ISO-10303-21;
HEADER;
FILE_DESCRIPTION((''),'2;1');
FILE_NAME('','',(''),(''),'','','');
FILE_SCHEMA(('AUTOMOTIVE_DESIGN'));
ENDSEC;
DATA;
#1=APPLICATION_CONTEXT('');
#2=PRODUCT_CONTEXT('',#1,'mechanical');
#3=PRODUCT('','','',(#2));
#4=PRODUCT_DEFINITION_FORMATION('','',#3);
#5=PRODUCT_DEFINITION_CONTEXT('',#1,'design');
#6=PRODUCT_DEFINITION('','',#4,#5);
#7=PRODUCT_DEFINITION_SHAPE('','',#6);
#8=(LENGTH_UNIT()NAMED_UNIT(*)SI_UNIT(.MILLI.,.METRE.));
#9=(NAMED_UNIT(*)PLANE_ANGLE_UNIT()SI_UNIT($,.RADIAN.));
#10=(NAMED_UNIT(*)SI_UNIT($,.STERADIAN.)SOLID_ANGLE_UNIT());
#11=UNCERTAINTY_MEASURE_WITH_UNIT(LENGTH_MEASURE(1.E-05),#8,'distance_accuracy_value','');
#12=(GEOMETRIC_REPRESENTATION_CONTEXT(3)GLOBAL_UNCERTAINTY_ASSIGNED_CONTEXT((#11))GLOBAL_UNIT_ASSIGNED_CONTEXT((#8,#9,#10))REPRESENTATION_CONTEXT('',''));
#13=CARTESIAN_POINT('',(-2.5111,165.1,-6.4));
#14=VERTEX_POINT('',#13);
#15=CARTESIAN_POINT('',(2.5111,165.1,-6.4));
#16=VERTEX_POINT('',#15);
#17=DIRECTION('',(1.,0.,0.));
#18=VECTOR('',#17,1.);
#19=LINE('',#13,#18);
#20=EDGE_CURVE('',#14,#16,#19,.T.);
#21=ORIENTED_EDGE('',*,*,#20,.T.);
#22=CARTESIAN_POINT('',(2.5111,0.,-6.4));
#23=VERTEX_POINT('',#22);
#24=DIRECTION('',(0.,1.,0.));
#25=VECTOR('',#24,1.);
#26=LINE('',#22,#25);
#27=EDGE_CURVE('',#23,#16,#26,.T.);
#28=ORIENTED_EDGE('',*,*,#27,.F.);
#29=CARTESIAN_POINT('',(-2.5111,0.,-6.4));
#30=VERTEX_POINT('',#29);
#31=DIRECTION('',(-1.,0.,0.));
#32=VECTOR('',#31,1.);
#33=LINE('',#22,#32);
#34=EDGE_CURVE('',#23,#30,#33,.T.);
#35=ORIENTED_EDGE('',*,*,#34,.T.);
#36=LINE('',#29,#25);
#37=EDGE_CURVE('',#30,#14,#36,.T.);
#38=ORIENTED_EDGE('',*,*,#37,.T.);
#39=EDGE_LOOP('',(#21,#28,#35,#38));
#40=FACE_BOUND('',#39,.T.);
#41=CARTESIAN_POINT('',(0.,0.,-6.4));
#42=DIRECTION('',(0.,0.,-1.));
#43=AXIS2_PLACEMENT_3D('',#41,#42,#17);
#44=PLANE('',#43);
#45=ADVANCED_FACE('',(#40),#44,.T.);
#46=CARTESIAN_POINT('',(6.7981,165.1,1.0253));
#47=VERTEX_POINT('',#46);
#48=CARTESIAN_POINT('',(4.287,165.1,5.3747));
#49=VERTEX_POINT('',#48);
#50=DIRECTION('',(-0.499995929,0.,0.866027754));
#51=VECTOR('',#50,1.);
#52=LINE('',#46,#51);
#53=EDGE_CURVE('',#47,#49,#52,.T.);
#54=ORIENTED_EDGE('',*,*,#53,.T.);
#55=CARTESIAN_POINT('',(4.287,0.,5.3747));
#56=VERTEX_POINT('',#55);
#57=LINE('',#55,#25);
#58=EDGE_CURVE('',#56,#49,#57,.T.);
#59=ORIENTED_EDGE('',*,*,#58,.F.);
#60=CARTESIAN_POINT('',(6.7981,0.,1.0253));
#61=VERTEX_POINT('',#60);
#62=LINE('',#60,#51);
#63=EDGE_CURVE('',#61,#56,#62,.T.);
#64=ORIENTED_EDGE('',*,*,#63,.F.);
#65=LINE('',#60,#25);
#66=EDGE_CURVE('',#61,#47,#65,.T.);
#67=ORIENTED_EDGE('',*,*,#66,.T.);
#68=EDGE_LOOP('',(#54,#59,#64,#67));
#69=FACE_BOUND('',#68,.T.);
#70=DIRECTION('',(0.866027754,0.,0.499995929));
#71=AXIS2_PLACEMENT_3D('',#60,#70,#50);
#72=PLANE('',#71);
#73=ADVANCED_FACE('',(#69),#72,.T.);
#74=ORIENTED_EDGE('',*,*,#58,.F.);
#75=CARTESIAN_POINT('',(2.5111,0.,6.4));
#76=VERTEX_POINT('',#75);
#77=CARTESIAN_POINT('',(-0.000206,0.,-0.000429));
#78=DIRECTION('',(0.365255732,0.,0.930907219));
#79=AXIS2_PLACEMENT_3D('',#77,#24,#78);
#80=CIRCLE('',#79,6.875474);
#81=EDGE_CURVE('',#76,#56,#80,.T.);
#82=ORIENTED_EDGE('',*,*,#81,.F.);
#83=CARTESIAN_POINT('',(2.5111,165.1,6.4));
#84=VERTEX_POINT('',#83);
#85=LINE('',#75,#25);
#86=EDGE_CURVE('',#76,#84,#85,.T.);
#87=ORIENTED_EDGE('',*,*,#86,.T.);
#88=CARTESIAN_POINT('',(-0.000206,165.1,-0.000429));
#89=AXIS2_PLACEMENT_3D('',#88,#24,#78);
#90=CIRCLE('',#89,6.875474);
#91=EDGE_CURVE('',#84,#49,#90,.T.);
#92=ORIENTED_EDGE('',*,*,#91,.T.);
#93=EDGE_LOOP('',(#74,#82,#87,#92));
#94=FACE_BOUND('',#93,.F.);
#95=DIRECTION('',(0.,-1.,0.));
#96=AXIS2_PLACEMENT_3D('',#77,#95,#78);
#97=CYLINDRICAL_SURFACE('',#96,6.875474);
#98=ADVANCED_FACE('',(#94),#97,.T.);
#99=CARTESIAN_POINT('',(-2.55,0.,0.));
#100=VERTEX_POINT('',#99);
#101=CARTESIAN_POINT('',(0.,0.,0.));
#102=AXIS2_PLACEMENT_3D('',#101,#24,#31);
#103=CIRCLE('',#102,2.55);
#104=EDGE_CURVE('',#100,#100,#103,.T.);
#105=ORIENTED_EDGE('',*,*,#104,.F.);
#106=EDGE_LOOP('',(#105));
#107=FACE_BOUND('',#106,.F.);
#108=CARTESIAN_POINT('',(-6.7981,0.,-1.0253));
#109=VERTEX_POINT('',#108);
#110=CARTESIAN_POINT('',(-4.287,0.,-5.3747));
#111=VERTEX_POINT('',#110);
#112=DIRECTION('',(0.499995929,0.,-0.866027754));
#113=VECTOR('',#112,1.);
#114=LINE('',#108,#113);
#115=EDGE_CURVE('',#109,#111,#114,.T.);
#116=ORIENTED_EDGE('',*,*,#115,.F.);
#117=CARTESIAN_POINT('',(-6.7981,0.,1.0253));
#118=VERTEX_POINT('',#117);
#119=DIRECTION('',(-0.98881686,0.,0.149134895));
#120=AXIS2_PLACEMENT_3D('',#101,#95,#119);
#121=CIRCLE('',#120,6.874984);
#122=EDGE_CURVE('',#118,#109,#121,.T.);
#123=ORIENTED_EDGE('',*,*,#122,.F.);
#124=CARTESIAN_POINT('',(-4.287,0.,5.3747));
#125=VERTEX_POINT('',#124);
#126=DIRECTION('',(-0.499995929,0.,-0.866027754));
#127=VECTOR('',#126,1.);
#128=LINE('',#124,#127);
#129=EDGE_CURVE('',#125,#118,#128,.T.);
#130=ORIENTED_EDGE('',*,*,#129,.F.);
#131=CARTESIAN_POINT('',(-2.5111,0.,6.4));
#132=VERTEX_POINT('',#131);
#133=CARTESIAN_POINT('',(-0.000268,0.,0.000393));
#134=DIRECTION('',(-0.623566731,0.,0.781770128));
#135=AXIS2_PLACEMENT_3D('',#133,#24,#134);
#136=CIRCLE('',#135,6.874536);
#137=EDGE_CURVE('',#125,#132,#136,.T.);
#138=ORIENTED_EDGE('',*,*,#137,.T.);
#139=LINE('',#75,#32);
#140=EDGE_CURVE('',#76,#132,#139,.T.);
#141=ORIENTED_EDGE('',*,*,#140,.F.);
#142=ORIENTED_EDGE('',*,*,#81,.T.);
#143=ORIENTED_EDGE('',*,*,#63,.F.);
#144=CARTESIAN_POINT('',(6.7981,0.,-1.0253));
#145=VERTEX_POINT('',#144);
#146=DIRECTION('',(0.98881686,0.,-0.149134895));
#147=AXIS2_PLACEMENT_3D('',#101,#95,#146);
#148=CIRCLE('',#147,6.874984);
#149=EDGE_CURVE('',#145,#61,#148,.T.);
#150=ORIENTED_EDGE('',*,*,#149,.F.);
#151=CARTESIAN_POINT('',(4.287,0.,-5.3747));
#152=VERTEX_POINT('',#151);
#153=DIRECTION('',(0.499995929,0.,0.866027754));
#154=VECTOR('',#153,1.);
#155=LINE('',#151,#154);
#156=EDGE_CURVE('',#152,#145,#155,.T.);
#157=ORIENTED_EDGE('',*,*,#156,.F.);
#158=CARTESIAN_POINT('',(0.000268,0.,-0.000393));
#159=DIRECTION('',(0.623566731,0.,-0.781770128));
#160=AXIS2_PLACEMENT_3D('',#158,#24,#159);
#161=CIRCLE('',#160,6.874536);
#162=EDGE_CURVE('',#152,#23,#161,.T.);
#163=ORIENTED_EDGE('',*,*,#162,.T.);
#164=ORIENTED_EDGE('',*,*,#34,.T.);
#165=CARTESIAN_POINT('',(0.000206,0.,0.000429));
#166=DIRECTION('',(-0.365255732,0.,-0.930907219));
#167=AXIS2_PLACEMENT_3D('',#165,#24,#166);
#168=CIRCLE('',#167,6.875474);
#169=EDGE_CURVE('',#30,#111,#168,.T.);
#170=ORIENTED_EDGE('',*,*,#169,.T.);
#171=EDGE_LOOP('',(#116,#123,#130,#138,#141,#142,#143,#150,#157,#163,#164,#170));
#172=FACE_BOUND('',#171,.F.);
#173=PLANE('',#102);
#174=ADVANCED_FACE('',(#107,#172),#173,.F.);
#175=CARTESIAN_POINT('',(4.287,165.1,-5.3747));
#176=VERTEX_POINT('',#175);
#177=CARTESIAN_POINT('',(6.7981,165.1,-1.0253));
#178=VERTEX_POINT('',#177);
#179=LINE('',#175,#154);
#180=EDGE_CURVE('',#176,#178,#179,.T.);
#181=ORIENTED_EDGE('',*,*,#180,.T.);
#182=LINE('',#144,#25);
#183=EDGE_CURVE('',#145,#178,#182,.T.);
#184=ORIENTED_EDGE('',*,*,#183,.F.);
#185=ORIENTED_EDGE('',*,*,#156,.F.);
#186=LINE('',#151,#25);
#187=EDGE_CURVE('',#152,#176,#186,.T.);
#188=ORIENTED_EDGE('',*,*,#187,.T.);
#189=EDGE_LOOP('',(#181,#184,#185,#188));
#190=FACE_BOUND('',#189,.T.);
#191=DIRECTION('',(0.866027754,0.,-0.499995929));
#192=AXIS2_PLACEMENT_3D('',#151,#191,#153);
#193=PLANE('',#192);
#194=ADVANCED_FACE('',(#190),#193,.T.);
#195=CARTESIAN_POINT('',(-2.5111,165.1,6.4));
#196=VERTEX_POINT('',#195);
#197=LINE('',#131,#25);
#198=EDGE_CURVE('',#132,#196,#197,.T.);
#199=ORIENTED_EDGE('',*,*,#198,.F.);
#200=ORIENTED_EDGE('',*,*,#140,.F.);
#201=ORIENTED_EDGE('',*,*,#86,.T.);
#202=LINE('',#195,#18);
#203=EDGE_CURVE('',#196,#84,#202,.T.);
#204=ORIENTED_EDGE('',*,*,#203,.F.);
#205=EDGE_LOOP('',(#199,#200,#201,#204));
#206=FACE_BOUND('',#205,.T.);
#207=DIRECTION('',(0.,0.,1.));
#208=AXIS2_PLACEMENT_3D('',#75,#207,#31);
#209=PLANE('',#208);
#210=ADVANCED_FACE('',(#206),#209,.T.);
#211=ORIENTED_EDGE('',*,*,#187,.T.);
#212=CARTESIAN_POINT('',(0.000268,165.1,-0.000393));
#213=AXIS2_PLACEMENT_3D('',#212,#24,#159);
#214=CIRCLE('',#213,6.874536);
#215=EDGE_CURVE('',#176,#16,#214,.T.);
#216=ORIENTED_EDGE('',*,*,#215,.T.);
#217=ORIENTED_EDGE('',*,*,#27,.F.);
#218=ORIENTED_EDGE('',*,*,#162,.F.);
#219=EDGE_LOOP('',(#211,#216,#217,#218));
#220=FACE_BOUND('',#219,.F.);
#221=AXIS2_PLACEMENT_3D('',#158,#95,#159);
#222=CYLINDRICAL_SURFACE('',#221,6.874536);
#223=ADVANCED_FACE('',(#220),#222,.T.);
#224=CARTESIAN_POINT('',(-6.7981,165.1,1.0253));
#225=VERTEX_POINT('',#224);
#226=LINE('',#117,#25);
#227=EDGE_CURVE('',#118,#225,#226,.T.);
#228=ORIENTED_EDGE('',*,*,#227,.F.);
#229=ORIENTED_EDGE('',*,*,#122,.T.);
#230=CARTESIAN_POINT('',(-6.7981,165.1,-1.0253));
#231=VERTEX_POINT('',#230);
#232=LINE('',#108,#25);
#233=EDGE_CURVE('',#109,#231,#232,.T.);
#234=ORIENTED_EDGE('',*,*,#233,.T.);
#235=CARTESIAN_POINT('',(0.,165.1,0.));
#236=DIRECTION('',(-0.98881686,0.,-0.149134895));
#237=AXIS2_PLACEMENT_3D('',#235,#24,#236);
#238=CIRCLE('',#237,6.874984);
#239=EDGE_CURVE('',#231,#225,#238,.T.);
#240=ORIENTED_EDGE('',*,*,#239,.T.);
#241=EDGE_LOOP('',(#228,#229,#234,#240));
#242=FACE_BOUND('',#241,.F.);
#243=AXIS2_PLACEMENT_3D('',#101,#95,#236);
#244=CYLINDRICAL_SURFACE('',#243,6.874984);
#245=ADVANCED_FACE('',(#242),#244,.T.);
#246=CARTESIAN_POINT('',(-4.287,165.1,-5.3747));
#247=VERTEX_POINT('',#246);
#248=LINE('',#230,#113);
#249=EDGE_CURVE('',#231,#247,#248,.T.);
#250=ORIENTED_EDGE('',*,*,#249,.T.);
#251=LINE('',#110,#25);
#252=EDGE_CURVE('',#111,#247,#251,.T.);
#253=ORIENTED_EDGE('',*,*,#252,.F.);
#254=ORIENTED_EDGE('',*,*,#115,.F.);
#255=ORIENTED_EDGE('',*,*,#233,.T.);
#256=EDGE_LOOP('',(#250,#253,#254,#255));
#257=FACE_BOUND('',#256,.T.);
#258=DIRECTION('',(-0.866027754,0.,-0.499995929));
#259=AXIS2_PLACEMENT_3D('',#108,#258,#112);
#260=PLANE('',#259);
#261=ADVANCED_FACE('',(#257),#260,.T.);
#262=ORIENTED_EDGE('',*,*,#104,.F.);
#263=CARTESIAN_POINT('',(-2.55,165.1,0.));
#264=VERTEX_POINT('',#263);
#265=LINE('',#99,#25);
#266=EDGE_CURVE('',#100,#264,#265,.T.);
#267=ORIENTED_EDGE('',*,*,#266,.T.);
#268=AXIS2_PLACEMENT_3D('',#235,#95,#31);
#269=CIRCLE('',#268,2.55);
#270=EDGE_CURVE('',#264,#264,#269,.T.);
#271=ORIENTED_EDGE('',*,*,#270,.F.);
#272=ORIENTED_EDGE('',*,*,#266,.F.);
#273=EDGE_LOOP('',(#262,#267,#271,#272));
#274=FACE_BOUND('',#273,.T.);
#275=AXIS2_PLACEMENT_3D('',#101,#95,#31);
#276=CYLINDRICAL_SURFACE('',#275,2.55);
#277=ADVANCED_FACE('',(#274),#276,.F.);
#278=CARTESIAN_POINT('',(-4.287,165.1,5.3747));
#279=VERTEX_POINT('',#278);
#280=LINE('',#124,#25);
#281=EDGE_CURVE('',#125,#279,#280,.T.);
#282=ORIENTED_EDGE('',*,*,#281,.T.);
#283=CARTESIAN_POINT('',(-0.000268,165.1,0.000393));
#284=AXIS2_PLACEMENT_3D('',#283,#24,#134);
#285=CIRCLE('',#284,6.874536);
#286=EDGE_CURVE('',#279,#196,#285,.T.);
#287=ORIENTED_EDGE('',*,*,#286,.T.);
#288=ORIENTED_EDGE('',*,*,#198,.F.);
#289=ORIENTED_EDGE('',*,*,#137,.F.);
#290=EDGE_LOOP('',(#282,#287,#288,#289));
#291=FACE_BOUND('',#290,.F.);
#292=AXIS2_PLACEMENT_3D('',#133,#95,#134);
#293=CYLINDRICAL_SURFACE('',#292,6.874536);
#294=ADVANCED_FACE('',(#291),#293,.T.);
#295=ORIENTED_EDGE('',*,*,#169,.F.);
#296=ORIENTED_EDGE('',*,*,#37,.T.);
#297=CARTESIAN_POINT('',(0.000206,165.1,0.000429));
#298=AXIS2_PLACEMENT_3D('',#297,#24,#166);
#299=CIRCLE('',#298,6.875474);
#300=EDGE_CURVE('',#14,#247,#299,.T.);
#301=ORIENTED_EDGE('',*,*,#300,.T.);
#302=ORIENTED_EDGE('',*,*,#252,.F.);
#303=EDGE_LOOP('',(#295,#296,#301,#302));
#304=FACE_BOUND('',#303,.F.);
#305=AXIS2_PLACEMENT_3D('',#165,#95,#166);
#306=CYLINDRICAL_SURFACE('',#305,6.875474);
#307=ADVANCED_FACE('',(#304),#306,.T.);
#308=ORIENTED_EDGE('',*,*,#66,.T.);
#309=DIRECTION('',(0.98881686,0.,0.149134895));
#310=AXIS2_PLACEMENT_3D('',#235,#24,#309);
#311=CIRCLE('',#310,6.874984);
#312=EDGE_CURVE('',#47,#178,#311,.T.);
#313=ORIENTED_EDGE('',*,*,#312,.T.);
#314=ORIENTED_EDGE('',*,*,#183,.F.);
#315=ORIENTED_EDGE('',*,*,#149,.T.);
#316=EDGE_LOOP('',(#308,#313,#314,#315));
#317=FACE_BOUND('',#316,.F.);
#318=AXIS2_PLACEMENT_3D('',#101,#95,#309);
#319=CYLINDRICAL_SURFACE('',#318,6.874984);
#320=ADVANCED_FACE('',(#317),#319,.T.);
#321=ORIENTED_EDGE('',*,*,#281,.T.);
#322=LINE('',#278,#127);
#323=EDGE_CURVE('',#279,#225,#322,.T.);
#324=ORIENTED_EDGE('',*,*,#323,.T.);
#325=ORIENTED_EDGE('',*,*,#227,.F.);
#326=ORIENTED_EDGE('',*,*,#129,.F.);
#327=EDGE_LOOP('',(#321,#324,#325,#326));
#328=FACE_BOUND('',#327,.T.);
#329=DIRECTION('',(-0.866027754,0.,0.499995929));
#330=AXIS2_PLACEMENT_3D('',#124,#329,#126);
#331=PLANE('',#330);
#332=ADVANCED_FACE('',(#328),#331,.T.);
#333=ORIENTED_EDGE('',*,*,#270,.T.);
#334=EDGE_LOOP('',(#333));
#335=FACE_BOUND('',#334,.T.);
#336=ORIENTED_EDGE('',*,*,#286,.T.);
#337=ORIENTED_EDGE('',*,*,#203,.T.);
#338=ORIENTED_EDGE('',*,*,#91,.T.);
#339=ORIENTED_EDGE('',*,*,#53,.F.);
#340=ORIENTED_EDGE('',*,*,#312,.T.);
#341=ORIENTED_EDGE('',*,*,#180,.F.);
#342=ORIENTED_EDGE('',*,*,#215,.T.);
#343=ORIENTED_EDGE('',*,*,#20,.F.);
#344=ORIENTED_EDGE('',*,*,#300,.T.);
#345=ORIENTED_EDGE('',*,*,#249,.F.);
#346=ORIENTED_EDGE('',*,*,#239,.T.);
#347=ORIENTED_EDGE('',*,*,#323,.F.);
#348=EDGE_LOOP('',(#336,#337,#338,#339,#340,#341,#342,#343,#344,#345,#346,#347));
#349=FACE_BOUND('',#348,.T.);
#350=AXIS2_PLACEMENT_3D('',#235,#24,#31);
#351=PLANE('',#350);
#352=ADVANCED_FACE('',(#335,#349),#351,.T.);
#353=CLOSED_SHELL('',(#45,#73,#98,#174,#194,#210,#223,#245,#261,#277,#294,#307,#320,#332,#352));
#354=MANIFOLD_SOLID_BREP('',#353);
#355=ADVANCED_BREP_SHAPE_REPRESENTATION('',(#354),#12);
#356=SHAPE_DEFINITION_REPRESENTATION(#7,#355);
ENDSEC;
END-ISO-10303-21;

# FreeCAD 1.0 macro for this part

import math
import FreeCAD as App
import Part
import Sketcher
Q = App.Units.Quantity

doc = App.newDocument("Part")
body = doc.addObject("PartDesign::Body", "Body")

# Sketch on XZ plane
sketch1 = doc.addObject("Sketcher::SketchObject", "Sketch")
body.addObject(sketch1)
sketch1.AttachmentSupport = (doc.XZ_Plane, [""])
sketch1.MapMode = "FlatFace"
sketch1.addGeometry([
    Part.LineSegment(App.Vector(2.5, -6.4, 0), App.Vector(-2.5, -6.4, 0)),  # 0
    Part.ArcOfCircle(Part.Circle(App.Vector(0, 0, 0), App.Vector(0, 0, 1), 6.9), math.radians(-128.58), math.radians(-111.42)),  # 1
    Part.LineSegment(App.Vector(-4.3, -5.4, 0), App.Vector(-6.8, -1, 0)),  # 2
    Part.ArcOfCircle(Part.Circle(App.Vector(0, 0, 0), App.Vector(0, 0, 1), 6.9), math.radians(171.42), math.radians(188.58)),  # 3
    Part.LineSegment(App.Vector(-6.8, 1, 0), App.Vector(-4.3, 5.4, 0)),  # 4
    Part.ArcOfCircle(Part.Circle(App.Vector(0, 0, 0), App.Vector(0, 0, 1), 6.9), math.radians(111.42), math.radians(128.58)),  # 5
    Part.LineSegment(App.Vector(-2.5, 6.4, 0), App.Vector(2.5, 6.4, 0)),  # 6
    Part.ArcOfCircle(Part.Circle(App.Vector(0, 0, 0), App.Vector(0, 0, 1), 6.9), math.radians(51.42), math.radians(68.58)),  # 7
    Part.LineSegment(App.Vector(4.3, 5.4, 0), App.Vector(6.8, 1, 0)),  # 8
    Part.ArcOfCircle(Part.Circle(App.Vector(0, 0, 0), App.Vector(0, 0, 1), 6.9), math.radians(-8.58), math.radians(8.58)),  # 9
    Part.LineSegment(App.Vector(6.8, -1, 0), App.Vector(4.3, -5.4, 0)),  # 10
    Part.ArcOfCircle(Part.Circle(App.Vector(0, 0, 0), App.Vector(0, 0, 1), 6.9), math.radians(-68.58), math.radians(-51.42)),  # 11
    Part.Circle(App.Vector(0, 0, 0), App.Vector(0, 0, 1), 2.5),  # 12
], False)
sketch1.addConstraint([
    Sketcher.Constraint("Coincident", 0, 2, 1, 2),
    Sketcher.Constraint("Coincident", 1, 1, 2, 1),
    Sketcher.Constraint("Coincident", 2, 2, 3, 2),
    Sketcher.Constraint("Coincident", 3, 1, 4, 1),
    Sketcher.Constraint("Coincident", 4, 2, 5, 2),
    Sketcher.Constraint("Coincident", 5, 1, 6, 1),
    Sketcher.Constraint("Coincident", 6, 2, 7, 2),
    Sketcher.Constraint("Coincident", 7, 1, 8, 1),
    Sketcher.Constraint("Coincident", 8, 2, 9, 2),
    Sketcher.Constraint("Coincident", 9, 1, 10, 1),
    Sketcher.Constraint("Coincident", 10, 2, 11, 2),
    Sketcher.Constraint("Coincident", 11, 1, 0, 1),
    Sketcher.Constraint("Horizontal", 0),
    Sketcher.Constraint("Horizontal", 6),
    Sketcher.Constraint("Coincident", 1, 3, -1, 1),
    Sketcher.Constraint("Coincident", 3, 3, -1, 1),
    Sketcher.Constraint("Coincident", 5, 3, -1, 1),
    Sketcher.Constraint("Coincident", 7, 3, -1, 1),
    Sketcher.Constraint("Coincident", 9, 3, -1, 1),
    Sketcher.Constraint("Coincident", 11, 3, -1, 1),
    Sketcher.Constraint("Coincident", 12, 3, -1, 1),
    Sketcher.Constraint("Equal", 1, 3),
    Sketcher.Constraint("Equal", 3, 5),
    Sketcher.Constraint("Equal", 5, 7),
    Sketcher.Constraint("Equal", 7, 9),
    Sketcher.Constraint("Equal", 9, 11),
    Sketcher.Constraint("Parallel", 2, 8),
    Sketcher.Constraint("Parallel", 4, 10),
    Sketcher.Constraint("Horizontal", 4, 2, 7, 1),
    Sketcher.Constraint("Horizontal", 3, 1, 8, 2),
    Sketcher.Constraint("Horizontal", 2, 2, 9, 1),
    Sketcher.Constraint("Vertical", 2, 2, 3, 1),
    Sketcher.Constraint("Vertical", 0, 2, 5, 1),
    Sketcher.Constraint("Diameter", 12, Q("5.1 mm")),
    Sketcher.Constraint("Angle", 2, Q("119.9997 deg")),
    Sketcher.Constraint("Radius", 1, Q("6.875 mm")),
    Sketcher.Constraint("DistanceY", 0, 2, -1, 1, Q("6.4 mm")),
    Sketcher.Constraint("DistanceY", 2, 2, 4, 2, Q("6.4 mm")),
])
pad1 = doc.addObject("PartDesign::Pad", "Pad")
body.addObject(pad1)
pad1.Profile = sketch1
pad1.Length = 165.1
pad1.Reversed = True

doc.recompute()
